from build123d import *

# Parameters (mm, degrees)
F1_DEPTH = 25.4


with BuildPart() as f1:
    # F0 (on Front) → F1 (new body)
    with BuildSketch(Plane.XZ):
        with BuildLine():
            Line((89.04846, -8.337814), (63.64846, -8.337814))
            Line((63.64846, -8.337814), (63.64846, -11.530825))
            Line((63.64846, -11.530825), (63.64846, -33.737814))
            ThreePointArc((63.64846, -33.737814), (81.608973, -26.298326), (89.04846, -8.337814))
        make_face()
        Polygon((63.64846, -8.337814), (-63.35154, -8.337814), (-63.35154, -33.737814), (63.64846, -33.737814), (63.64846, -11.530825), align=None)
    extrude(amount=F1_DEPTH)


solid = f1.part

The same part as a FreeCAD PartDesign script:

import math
import FreeCAD as App
import Part
import Sketcher
from FreeCAD import Vector
Q = App.Units.Quantity

doc = App.newDocument("Part")
body = doc.addObject("PartDesign::Body", "Body")

# Sketch on XZ plane
sketch1 = body.newObject("Sketcher::SketchObject", "Sketch")
sketch1.AttachmentSupport = (doc.getObject("XZ_Plane"), [""])
sketch1.MapMode = "FlatFace"
sketch1.addGeometry([
    Part.LineSegment(Vector(89.04846, -8.337814, 0), Vector(-63.35154, -8.337814, 0)),
    Part.LineSegment(Vector(-63.35154, -8.337814, 0), Vector(-63.35154, -33.737814, 0)),
    Part.LineSegment(Vector(-63.35154, -33.737814, 0), Vector(63.64846, -33.737814, 0)),
    Part.ArcOfCircle(Part.Circle(Vector(63.648461, -8.337815, 0), Vector(0, 0, 1), 25.399999), math.radians(-90.000002), math.radians(0.000002)),
], False)
sketch1.addConstraint([
    Sketcher.Constraint("Coincident", 0, 2, 1, 1),
    Sketcher.Constraint("Coincident", 1, 2, 2, 1),
    Sketcher.Constraint("Tangent", 2, 2, 3, 1),
    Sketcher.Constraint("Coincident", 3, 2, 0, 1),
    Sketcher.Constraint("Horizontal", 0),
    Sketcher.Constraint("Vertical", 1),
    Sketcher.Constraint("Horizontal", 2),
    Sketcher.Constraint("Horizontal", 3, 3, 0, 2),
    Sketcher.Constraint("Radius", 3, Q("1 in")),
    Sketcher.Constraint("DistanceX", 0, 2, 0, 1, Q("6 in")),
    Sketcher.Constraint("DistanceX", -1, 1, 3, 3, Q("63.648461 mm")),
    Sketcher.Constraint("DistanceY", 3, 3, -1, 1, Q("8.337815 mm")),
])
pad1 = body.newObject("PartDesign::Pad", "Pad")
pad1.Profile = sketch1
pad1.Length = Q("1 in")

doc.recompute()
